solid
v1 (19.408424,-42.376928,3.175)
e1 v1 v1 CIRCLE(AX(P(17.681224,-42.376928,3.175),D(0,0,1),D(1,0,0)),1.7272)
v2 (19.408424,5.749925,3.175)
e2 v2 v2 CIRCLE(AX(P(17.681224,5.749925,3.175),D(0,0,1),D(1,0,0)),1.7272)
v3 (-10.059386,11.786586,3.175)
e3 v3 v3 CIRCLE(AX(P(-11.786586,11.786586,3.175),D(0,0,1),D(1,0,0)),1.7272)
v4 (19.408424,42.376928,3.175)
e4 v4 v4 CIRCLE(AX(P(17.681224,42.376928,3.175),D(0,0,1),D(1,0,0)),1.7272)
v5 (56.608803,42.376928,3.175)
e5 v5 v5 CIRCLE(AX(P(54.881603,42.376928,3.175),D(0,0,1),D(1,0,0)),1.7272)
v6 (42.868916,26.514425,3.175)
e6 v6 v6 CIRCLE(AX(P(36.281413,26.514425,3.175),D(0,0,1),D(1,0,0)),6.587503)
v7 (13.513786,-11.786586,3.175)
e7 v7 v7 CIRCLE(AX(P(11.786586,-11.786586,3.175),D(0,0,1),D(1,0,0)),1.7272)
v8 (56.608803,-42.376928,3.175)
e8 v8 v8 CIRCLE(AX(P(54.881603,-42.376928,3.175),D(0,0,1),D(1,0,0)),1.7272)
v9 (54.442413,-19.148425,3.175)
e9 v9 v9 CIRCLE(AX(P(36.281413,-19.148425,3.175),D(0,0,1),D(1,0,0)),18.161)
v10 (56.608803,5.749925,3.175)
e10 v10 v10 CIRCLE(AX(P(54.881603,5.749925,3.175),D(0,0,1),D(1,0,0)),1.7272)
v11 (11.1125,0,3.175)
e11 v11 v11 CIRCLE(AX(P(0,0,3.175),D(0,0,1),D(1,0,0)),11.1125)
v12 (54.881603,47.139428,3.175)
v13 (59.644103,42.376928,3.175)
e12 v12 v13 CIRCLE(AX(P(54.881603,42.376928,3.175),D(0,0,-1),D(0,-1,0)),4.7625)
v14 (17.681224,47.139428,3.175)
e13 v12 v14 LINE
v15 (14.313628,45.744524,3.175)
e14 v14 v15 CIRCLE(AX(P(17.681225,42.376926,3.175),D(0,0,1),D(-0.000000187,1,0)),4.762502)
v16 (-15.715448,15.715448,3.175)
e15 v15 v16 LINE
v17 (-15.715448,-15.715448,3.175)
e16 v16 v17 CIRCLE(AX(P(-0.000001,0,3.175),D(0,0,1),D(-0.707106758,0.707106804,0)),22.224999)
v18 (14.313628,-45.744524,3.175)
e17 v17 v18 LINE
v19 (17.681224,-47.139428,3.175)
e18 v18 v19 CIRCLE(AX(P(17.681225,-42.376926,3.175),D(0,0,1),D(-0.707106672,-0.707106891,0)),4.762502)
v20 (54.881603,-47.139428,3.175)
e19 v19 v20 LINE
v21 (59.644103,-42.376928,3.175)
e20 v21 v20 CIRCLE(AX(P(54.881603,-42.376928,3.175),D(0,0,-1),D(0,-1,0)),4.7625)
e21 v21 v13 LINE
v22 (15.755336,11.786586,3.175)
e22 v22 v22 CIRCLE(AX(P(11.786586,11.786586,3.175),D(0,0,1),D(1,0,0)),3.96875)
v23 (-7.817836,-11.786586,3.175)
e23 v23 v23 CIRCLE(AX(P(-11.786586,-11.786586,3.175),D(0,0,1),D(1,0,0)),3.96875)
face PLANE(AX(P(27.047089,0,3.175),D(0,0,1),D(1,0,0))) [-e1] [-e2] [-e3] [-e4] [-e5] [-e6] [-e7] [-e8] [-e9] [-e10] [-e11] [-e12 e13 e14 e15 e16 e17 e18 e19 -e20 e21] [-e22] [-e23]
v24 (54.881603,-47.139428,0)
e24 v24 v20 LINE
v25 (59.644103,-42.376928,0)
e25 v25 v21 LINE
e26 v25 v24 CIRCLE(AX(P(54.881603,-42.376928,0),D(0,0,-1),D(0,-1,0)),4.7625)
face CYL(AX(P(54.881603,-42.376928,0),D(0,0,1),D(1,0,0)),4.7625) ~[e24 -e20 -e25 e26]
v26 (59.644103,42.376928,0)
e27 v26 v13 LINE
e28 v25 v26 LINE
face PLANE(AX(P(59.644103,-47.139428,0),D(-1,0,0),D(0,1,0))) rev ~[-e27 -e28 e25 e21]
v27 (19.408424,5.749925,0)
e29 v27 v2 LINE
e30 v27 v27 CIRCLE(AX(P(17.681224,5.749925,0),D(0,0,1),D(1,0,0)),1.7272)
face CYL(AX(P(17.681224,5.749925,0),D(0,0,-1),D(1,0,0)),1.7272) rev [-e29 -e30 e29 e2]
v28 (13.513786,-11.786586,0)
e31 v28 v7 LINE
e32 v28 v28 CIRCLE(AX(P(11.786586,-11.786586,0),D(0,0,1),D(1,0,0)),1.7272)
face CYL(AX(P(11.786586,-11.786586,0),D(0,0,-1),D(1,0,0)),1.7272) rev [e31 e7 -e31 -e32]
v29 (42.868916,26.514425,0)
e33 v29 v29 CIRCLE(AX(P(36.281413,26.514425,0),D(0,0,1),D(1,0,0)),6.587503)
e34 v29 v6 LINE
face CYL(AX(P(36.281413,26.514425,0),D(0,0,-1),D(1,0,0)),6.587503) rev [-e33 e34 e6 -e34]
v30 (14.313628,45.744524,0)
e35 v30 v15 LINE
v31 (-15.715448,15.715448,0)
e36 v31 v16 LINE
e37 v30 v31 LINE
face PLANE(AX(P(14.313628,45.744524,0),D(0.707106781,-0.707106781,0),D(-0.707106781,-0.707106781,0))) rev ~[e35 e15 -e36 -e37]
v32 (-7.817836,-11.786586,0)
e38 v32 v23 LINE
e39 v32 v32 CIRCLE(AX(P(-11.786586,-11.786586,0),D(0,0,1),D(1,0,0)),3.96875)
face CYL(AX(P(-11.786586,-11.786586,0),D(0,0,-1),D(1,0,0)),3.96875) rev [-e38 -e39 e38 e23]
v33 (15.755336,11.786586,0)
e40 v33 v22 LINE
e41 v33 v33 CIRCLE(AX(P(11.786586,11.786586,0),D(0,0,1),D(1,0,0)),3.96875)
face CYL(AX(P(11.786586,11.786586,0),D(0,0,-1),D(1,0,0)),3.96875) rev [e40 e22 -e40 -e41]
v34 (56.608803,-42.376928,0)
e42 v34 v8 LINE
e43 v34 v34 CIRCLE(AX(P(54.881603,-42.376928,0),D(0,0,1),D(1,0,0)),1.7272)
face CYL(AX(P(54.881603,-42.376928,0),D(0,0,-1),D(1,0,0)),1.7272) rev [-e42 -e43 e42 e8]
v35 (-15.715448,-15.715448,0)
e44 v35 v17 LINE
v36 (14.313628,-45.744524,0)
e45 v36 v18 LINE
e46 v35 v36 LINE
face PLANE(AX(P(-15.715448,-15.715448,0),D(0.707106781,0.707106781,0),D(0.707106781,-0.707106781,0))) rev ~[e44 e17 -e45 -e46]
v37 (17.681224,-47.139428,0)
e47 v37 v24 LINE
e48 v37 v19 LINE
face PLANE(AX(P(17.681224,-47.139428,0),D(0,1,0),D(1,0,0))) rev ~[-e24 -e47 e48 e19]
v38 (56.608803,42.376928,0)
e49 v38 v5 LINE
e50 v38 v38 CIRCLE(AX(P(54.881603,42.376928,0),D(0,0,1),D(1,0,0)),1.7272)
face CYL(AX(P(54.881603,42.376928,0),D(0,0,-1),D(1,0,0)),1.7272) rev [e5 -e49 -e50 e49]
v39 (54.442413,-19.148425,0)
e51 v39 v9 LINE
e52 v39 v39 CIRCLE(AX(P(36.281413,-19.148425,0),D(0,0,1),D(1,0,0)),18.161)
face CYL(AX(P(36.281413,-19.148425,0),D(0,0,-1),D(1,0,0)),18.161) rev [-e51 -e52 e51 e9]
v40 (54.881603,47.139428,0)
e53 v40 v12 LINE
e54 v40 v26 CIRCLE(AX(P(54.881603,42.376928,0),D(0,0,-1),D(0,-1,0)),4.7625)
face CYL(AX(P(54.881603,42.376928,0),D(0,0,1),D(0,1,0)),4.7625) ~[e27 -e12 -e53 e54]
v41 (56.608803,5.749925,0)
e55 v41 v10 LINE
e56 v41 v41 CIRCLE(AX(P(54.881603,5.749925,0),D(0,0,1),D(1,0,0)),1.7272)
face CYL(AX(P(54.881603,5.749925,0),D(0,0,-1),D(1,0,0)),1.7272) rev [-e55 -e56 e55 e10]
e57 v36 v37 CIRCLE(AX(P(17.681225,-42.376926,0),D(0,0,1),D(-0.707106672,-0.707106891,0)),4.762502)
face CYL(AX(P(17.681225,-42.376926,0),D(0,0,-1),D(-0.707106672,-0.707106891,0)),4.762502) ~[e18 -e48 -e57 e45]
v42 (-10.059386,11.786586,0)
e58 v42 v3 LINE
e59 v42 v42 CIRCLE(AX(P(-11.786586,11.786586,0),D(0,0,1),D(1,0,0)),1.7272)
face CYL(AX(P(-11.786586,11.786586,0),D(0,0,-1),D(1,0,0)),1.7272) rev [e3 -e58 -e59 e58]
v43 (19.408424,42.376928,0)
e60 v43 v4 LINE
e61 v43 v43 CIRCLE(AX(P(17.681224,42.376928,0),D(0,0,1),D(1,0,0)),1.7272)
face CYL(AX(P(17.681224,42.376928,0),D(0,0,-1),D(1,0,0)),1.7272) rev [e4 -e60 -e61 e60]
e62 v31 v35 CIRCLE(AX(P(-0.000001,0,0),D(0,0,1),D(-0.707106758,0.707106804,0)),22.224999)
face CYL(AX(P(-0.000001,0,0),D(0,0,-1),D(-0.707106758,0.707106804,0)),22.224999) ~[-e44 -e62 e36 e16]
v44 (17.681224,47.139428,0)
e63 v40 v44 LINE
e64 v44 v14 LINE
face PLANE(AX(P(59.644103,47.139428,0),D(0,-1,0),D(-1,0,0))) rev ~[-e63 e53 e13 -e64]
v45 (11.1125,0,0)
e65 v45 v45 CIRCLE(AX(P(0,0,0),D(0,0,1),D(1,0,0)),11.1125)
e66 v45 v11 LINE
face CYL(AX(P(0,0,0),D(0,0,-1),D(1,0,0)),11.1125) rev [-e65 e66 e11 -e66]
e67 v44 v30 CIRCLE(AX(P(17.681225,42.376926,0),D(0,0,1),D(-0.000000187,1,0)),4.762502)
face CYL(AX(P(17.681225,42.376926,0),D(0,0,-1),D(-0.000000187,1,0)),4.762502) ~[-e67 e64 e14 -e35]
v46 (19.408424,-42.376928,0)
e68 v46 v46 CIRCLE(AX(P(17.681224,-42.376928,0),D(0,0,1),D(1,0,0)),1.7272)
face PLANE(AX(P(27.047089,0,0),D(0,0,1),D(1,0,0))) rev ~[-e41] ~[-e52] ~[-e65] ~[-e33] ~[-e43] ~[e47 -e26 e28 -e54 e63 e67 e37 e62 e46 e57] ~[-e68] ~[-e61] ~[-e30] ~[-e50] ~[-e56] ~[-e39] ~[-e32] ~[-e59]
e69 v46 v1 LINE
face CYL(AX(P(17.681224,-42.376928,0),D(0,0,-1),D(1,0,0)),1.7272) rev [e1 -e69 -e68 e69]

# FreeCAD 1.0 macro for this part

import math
import FreeCAD as App
import Part
import Sketcher
from FreeCAD import Vector
Q = App.Units.Quantity


def edges_at(feature, points):
    """Names of the edges that pass closest to the given points."""
    edges = feature.Shape.Edges
    near = lambda p: min(range(len(edges)), key=lambda i: edges[i].distToShape(Part.Vertex(*p))[0])
    return sorted({f"Edge{near(p) + 1}" for p in points})

doc = App.newDocument("Part")
body = doc.addObject("PartDesign::Body", "Body")

# Sketch on XY plane
sketch1 = body.newObject("Sketcher::SketchObject", "Sketch")
sketch1.AttachmentSupport = (doc.getObject("XY_Plane"), [""])
sketch1.MapMode = "FlatFace"
sketch1.addGeometry(Part.LineSegment(Vector(14.3, 45.7, 0), Vector(-15.7, 15.7, 0)), False)
sketch1.addGeometry(Part.ArcOfCircle(Part.Circle(Vector(0, 0, 0), Vector(0, 0, 1), 22.2), math.radians(135), math.radians(225)), False)
sketch1.addGeometry(Part.LineSegment(Vector(-15.7, -15.7, 0), Vector(14.3, -45.7, 0)), False)
sketch1.addGeometry(Part.ArcOfCircle(Part.Circle(Vector(17.7, -42.4, 0), Vector(0, 0, 1), 4.8), math.radians(-135), math.radians(-90)), False)
sketch1.addGeometry(Part.LineSegment(Vector(17.7, -47.1, 0), Vector(59.6, -47.1, 0)), False)
sketch1.addGeometry(Part.LineSegment(Vector(59.6, -47.1, 0), Vector(59.6, 47.1, 0)), False)
sketch1.addGeometry(Part.LineSegment(Vector(59.6, 47.1, 0), Vector(17.7, 47.1, 0)), False)
sketch1.addGeometry(Part.ArcOfCircle(Part.Circle(Vector(17.7, 42.4, 0), Vector(0, 0, 1), 4.8), math.radians(90), math.radians(135)), False)
sketch1.addGeometry(Part.Circle(Vector(17.7, -42.4, 0), Vector(0, 0, 1), 1.7), False)
sketch1.addGeometry(Part.Circle(Vector(-11.8, -11.8, 0), Vector(0, 0, 1), 4), False)
sketch1.addGeometry(Part.Circle(Vector(11.8, -11.8, 0), Vector(0, 0, 1), 1.7), False)
sketch1.addGeometry(Part.Circle(Vector(54.9, -42.4, 0), Vector(0, 0, 1), 1.7), False)
sketch1.addGeometry(Part.Circle(Vector(36.3, -19.1, 0), Vector(0, 0, 1), 18.2), False)
sketch1.addGeometry(Part.Circle(Vector(0, 0, 0), Vector(0, 0, 1), 11.1), False)
sketch1.addGeometry(Part.Circle(Vector(-11.8, 11.8, 0), Vector(0, 0, 1), 1.7), False)
sketch1.addGeometry(Part.Circle(Vector(17.7, 5.7, 0), Vector(0, 0, 1), 1.7), False)
sketch1.addGeometry(Part.Circle(Vector(11.8, 11.8, 0), Vector(0, 0, 1), 4), False)
sketch1.addGeometry(Part.Circle(Vector(17.7, 42.4, 0), Vector(0, 0, 1), 1.7), False)
sketch1.addGeometry(Part.Circle(Vector(54.9, 5.7, 0), Vector(0, 0, 1), 1.7), False)
sketch1.addGeometry(Part.Circle(Vector(36.3, 26.5, 0), Vector(0, 0, 1), 6.6), False)
sketch1.addGeometry(Part.Circle(Vector(54.9, 42.4, 0), Vector(0, 0, 1), 1.7), False)
sketch1.addConstraint(Sketcher.Constraint("Tangent", 0, 2, 1, 1))
sketch1.addConstraint(Sketcher.Constraint("Tangent", 1, 2, 2, 1))
sketch1.addConstraint(Sketcher.Constraint("Tangent", 2, 2, 3, 1))
sketch1.addConstraint(Sketcher.Constraint("Tangent", 3, 2, 4, 1))
sketch1.addConstraint(Sketcher.Constraint("Coincident", 4, 2, 5, 1))
sketch1.addConstraint(Sketcher.Constraint("Coincident", 5, 2, 6, 1))
sketch1.addConstraint(Sketcher.Constraint("Tangent", 6, 2, 7, 1))
sketch1.addConstraint(Sketcher.Constraint("Tangent", 7, 2, 0, 1))
sketch1.addConstraint(Sketcher.Constraint("Horizontal", 4))
sketch1.addConstraint(Sketcher.Constraint("Vertical", 5))
sketch1.addConstraint(Sketcher.Constraint("Horizontal", 6))
sketch1.addConstraint(Sketcher.Constraint("Coincident", 1, 3, -1, 1))
sketch1.addConstraint(Sketcher.Constraint("Coincident", 13, 3, -1, 1))
sketch1.addConstraint(Sketcher.Constraint("Coincident", 8, 3, 3, 3))
sketch1.addConstraint(Sketcher.Constraint("Coincident", 17, 3, 7, 3))
sketch1.addConstraint(Sketcher.Constraint("Equal", 3, 7))
sketch1.addConstraint(Sketcher.Constraint("Equal", 8, 10))
sketch1.addConstraint(Sketcher.Constraint("Equal", 10, 11))
sketch1.addConstraint(Sketcher.Constraint("Equal", 11, 14))
sketch1.addConstraint(Sketcher.Constraint("Equal", 14, 15))
sketch1.addConstraint(Sketcher.Constraint("Equal", 9, 16))
sketch1.addConstraint(Sketcher.Constraint("Equal", 15, 17))
sketch1.addConstraint(Sketcher.Constraint("Equal", 17, 18))
sketch1.addConstraint(Sketcher.Constraint("Equal", 18, 20))
sketch1.addConstraint(Sketcher.Constraint("Symmetric", 10, 3, 14, 3, -1, 1))
sketch1.addConstraint(Sketcher.Constraint("Symmetric", 9, 3, 16, 3, -1, 1))
sketch1.addConstraint(Sketcher.Constraint("Symmetric", 9, 3, 10, 3, -2))
sketch1.addConstraint(Sketcher.Constraint("Symmetric", 3, 3, 7, 3, -1))
sketch1.addConstraint(Sketcher.Constraint("Symmetric", 11, 3, 20, 3, -1))
sketch1.addConstraint(Sketcher.Constraint("Perpendicular", 0, 2))
sketch1.addConstraint(Sketcher.Constraint("Horizontal", 8, 3, 11, 3))
sketch1.addConstraint(Sketcher.Constraint("Horizontal", 15, 3, 18, 3))
sketch1.addConstraint(Sketcher.Constraint("Vertical", 8, 3, 15, 3))
sketch1.addConstraint(Sketcher.Constraint("Vertical", 11, 3, 18, 3))
sketch1.addConstraint(Sketcher.Constraint("Vertical", 12, 3, 19, 3))
sketch1.addConstraint(Sketcher.Constraint("Diameter", 12, Q("1.43 in")))
sketch1.addConstraint(Sketcher.Constraint("Diameter", 8, Q("0.136 in")))
sketch1.addConstraint(Sketcher.Constraint("Diameter", 9, Q("0.3125 in")))
sketch1.addConstraint(Sketcher.Constraint("Diameter", 13, Q("0.875 in")))
sketch1.addConstraint(Sketcher.Constraint("Radius", 1, Q("0.875 in")))
sketch1.addConstraint(Sketcher.Constraint("Radius", 3, Q("0.1875001 in")))
sketch1.addConstraint(Sketcher.Constraint("DistanceX", 11, 3, 4, 2, Q("0.1875 in")))
sketch1.addConstraint(Sketcher.Constraint("Diameter", 19, Q("13.175006 mm")))
sketch1.addConstraint(Sketcher.Constraint("DistanceY", 15, 3, 19, 3, Q("0.8175 in")))
sketch1.addConstraint(Sketcher.Constraint("DistanceX", 4, 1, 4, 2, Q("41.962879 mm")))
sketch1.addConstraint(Sketcher.Constraint("DistanceY", 3, 3, 12, 3, Q("23.228501 mm")))
sketch1.addConstraint(Sketcher.Constraint("DistanceY", 19, 3, 7, 3, Q("15.862501 mm")))
sketch1.addConstraint(Sketcher.Constraint("DistanceY", 5, 1, 5, 2, Q("94.278856 mm")))
sketch1.addConstraint(Sketcher.Constraint("DistanceX", 9, 3, 3, 3, Q("29.467811 mm")))
sketch1.addConstraint(Sketcher.Constraint("DistanceY", 3, 3, 9, 3, Q("30.59034 mm")))
sketch1.addConstraint(Sketcher.Constraint("DistanceX", 3, 3, 12, 3, Q("18.600188 mm")))
pad1 = body.newObject("PartDesign::Pad", "Pad")
pad1.Profile = sketch1
pad1.Length = Q("0.125 in")
doc.recompute()

fillet = body.newObject("PartDesign::Fillet", "Fillet")
fillet.Base = (pad1, edges_at(pad1, [(59.644, 47.139, 1.587), (59.644, -47.139, 1.587)]))
fillet.Radius = Q("0.1875 in")

doc.recompute()
